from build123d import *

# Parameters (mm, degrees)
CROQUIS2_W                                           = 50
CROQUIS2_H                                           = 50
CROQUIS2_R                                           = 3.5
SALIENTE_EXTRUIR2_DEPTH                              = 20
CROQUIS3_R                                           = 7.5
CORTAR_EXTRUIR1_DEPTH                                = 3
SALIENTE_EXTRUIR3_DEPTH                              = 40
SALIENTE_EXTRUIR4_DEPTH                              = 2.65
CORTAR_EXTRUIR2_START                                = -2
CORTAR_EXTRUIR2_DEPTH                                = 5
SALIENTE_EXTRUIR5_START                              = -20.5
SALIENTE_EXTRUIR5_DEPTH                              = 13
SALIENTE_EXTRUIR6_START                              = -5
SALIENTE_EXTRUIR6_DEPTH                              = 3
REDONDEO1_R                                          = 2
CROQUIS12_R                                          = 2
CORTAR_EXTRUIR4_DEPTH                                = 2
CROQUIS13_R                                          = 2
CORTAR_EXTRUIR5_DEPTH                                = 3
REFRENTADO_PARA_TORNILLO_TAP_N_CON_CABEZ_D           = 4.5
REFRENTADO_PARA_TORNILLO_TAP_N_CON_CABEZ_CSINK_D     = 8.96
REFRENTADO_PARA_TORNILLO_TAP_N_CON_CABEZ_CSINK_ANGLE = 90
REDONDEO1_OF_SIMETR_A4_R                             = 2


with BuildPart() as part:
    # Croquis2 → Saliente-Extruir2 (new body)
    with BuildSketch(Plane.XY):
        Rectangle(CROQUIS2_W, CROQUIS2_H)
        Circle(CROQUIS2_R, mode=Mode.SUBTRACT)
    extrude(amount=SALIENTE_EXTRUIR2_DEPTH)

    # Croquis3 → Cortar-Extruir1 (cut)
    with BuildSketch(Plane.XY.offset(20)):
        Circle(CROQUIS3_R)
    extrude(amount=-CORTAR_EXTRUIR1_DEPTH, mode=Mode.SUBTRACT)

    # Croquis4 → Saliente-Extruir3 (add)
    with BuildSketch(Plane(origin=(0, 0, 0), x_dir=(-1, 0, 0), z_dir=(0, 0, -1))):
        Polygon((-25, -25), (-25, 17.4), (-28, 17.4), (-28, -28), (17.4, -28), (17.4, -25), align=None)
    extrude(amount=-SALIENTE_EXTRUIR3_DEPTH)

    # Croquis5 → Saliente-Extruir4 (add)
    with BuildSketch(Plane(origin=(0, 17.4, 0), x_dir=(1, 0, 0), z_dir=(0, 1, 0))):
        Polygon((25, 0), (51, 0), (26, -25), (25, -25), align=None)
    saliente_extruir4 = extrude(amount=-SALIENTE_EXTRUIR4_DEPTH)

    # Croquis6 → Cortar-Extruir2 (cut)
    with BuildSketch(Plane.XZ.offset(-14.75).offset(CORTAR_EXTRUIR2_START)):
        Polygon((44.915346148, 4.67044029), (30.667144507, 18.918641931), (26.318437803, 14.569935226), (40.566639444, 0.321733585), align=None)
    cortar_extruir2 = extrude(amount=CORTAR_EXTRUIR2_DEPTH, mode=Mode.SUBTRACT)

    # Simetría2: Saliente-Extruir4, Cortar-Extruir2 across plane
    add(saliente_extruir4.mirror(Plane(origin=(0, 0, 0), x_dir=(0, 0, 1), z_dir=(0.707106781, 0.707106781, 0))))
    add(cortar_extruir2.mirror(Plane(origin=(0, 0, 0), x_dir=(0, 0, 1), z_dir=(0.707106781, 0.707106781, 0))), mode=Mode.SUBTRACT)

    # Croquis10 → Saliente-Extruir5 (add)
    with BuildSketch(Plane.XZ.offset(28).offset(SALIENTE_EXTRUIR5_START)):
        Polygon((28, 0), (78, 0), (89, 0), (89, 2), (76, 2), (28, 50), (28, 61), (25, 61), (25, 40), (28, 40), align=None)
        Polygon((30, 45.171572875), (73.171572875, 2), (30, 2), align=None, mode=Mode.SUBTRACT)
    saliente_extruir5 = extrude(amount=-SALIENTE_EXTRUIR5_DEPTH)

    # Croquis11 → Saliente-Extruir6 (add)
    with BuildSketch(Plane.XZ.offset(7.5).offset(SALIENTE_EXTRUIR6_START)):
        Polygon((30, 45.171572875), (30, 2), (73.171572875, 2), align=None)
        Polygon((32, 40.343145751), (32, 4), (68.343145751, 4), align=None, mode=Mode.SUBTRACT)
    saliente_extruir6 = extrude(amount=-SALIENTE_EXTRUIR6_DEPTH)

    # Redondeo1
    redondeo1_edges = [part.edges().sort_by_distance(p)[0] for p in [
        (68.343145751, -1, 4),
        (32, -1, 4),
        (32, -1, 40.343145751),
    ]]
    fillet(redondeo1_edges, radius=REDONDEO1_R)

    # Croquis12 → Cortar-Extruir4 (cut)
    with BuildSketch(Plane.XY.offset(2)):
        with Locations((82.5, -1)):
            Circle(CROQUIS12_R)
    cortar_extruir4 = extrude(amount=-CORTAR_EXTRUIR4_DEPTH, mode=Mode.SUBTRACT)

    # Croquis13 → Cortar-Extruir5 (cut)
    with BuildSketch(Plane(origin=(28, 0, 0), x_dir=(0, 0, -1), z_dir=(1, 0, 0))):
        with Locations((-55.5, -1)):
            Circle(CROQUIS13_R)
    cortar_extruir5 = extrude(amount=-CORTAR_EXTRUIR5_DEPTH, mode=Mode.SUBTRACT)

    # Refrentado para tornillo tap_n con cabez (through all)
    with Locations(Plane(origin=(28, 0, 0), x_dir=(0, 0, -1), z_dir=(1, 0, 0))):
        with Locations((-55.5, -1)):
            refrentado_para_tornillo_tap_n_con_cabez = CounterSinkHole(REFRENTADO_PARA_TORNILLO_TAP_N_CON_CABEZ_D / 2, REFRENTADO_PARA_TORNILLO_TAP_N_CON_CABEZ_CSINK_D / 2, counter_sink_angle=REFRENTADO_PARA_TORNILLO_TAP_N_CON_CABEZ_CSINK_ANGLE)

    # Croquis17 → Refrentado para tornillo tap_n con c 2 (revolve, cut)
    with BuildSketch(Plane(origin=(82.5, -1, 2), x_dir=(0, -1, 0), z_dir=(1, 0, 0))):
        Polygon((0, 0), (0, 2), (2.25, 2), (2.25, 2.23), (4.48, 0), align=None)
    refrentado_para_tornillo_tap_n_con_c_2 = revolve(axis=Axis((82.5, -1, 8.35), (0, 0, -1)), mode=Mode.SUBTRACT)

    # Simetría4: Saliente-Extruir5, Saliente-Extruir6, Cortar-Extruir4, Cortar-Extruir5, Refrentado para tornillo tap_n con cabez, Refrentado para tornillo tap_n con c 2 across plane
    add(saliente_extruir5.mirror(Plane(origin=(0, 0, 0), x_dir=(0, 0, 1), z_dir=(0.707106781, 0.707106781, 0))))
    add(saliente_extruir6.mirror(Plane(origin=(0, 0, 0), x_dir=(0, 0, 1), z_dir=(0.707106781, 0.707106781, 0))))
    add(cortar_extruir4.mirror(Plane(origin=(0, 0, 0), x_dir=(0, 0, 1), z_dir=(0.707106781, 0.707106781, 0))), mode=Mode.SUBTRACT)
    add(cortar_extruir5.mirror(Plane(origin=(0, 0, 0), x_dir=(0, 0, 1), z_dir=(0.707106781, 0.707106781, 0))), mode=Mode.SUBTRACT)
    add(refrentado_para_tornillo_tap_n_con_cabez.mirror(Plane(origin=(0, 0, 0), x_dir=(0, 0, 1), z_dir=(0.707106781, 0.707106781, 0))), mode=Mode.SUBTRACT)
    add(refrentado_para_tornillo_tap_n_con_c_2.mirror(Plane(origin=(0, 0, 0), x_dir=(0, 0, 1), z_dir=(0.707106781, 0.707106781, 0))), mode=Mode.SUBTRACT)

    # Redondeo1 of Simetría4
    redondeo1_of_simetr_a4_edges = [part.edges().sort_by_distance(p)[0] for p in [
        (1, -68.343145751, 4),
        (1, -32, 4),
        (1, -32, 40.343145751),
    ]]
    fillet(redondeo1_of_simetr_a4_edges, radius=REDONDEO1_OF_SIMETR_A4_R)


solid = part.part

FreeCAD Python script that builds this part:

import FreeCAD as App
import Part
import Sketcher
Q = App.Units.Quantity


def edges_at(feature, points):
    """Names of the edges that pass closest to the given points."""
    edges = feature.Shape.Edges
    near = lambda p: min(range(len(edges)), key=lambda i: edges[i].distToShape(Part.Vertex(*p))[0])
    return sorted({f"Edge{near(p) + 1}" for p in points})


def add_polygon(sketch, points):
    """Adds a closed chain of lines whose ends are joined by coincident constraints."""
    first, n = sketch.GeometryCount, len(points)
    for a, b in zip(points, points[1:] + points[:1]):
        sketch.addGeometry(Part.LineSegment(App.Vector(*a, 0), App.Vector(*b, 0)), False)
    for i in range(n):
        sketch.addConstraint(Sketcher.Constraint("Coincident", first + i, 2, first + (i + 1) % n, 1))

doc = App.newDocument("Part")
body = doc.addObject("PartDesign::Body", "Body")

# Sketch on XY plane
sketch1 = doc.addObject("Sketcher::SketchObject", "Sketch")
body.addObject(sketch1)
sketch1.AttachmentSupport = (doc.XY_Plane, [""])
sketch1.MapMode = "FlatFace"
add_polygon(sketch1, [(-25, 25), (-25, -25), (25, -25), (25, 25)])  # lines 0-3
sketch1.addGeometry(Part.Circle(App.Vector(0, 0, 0), App.Vector(0, 0, 1), 3.5), False)  # 4
sketch1.addConstraint([
    Sketcher.Constraint("Vertical", 0),
    Sketcher.Constraint("Horizontal", 1),
    Sketcher.Constraint("Vertical", 2),
    Sketcher.Constraint("Horizontal", 3),
    Sketcher.Constraint("Coincident", 4, 3, -1, 1),
    Sketcher.Constraint("Symmetric", 0, 2, 2, 2, -1, 1),
    Sketcher.Constraint("Equal", 3, 0),
    Sketcher.Constraint("Diameter", 4, Q("7 mm")),
    Sketcher.Constraint("DistanceX", 1, 1, 1, 2, Q("50 mm")),
])
pad1 = doc.addObject("PartDesign::Pad", "Pad")
body.addObject(pad1)
pad1.Profile = sketch1
pad1.Length = 20

# Sketch on XY plane
sketch2 = doc.addObject("Sketcher::SketchObject", "Sketch001")
body.addObject(sketch2)
sketch2.AttachmentSupport = (doc.XY_Plane, [""])
sketch2.MapMode = "FlatFace"
sketch2.AttachmentOffset = App.Placement(App.Vector(0, 0, 20), App.Rotation())
sketch2.addGeometry(Part.Circle(App.Vector(0, 0, 0), App.Vector(0, 0, 1), 8), False)
sketch2.addConstraint([
    Sketcher.Constraint("Coincident", 0, 3, -1, 1),
    Sketcher.Constraint("Diameter", 0, Q("15 mm")),
])
pocket1 = doc.addObject("PartDesign::Pocket", "Pocket")
body.addObject(pocket1)
pocket1.Profile = sketch2
pocket1.Length = 3

# Sketch on XY plane
sketch3 = doc.addObject("Sketcher::SketchObject", "Sketch002")
body.addObject(sketch3)
sketch3.AttachmentSupport = (doc.XY_Plane, [""])
sketch3.MapMode = "FlatFace"
add_polygon(sketch3, [(25, -25), (25, 17.4), (28, 17.4), (28, -28), (-17.4, -28), (-17.4, -25)])  # lines 0-5
sketch3.addConstraint([
    Sketcher.Constraint("Vertical", 0),
    Sketcher.Constraint("Horizontal", 1),
    Sketcher.Constraint("Vertical", 2),
    Sketcher.Constraint("Horizontal", 3),
    Sketcher.Constraint("Vertical", 4),
    Sketcher.Constraint("Horizontal", 5),
    Sketcher.Constraint("Equal", 5, 0),
    Sketcher.Constraint("Equal", 3, 2),
    Sketcher.Constraint("DistanceX", 1, 1, 1, 2, Q("3 mm")),
    Sketcher.Constraint("DistanceX", 3, 2, 3, 1, Q("45.4 mm")),
    Sketcher.Constraint("DistanceX", -1, 1, 0, 2, Q("25 mm")),
    Sketcher.Constraint("DistanceY", 2, 2, -1, 1, Q("28 mm")),
])
pad2 = doc.addObject("PartDesign::Pad", "Pad001")
body.addObject(pad2)
pad2.Profile = sketch3
pad2.Length = 40

# Sketch on XZ plane
sketch4 = doc.addObject("Sketcher::SketchObject", "Sketch003")
body.addObject(sketch4)
sketch4.AttachmentSupport = (doc.XZ_Plane, [""])
sketch4.MapMode = "FlatFace"
sketch4.AttachmentOffset = App.Placement(App.Vector(0, 0, -17.4), App.Rotation())
add_polygon(sketch4, [(51, 0), (25, 0), (25, 25), (26, 25)])  # lines 0-3
sketch4.addConstraint([
    Sketcher.Constraint("Horizontal", 0),
    Sketcher.Constraint("Vertical", 1),
    Sketcher.Constraint("Horizontal", 2),
    Sketcher.Constraint("PointOnObject", 0, 2, -1),
    Sketcher.Constraint("DistanceX", 0, 2, 0, 1, Q("26 mm")),
    Sketcher.Constraint("DistanceX", 2, 1, 2, 2, Q("1 mm")),
    Sketcher.Constraint("DistanceY", 1, 1, 1, 2, Q("25 mm")),
    Sketcher.Constraint("DistanceX", -1, 1, 0, 2, Q("25 mm")),
])
pad3 = doc.addObject("PartDesign::Pad", "Pad002")
body.addObject(pad3)
pad3.Profile = sketch4
pad3.Length = 2.65

# Sketch on XZ plane
sketch5 = doc.addObject("Sketcher::SketchObject", "Sketch004")
body.addObject(sketch5)
sketch5.AttachmentSupport = (doc.XZ_Plane, [""])
sketch5.MapMode = "FlatFace"
sketch5.AttachmentOffset = App.Placement(App.Vector(0, 0, -16.75), App.Rotation())
add_polygon(sketch5, [(45, 5), (31, 19), (26, 15), (41, 0)])  # lines 0-3
sketch5.addConstraint([
    Sketcher.Constraint("Perpendicular", 0, 1),
    Sketcher.Constraint("Perpendicular", 1, 2),
    Sketcher.Constraint("Perpendicular", 2, 3),
    Sketcher.Constraint("Angle", 0, Q("135 deg")),
    Sketcher.Constraint("Distance", 0, Q("20.15 mm")),
    Sketcher.Constraint("Distance", 1, Q("6.15 mm")),
    Sketcher.Constraint("DistanceY", -1, 1, 0, 2, Q("18.918642 mm")),
    Sketcher.Constraint("DistanceX", -1, 1, 2, 2, Q("40.566639 mm")),
])
pocket2 = doc.addObject("PartDesign::Pocket", "Pocket001")
body.addObject(pocket2)
pocket2.Profile = sketch5
pocket2.Length = 5
pocket2.Reversed = True
doc.recompute()

datumplane = doc.addObject("PartDesign::Plane", "DatumPlane")
body.addObject(datumplane)
datumplane.Placement = App.Placement(App.Vector(0, 0, 0), App.Rotation(App.Vector(0.707106781, -0.707106781, 0), App.Vector(0, 0, -1), App.Vector(0.707106781, 0.707106781, 0), "ZXY"))
mirrored = doc.addObject("PartDesign::Mirrored", "Mirrored")
body.addObject(mirrored)
mirrored.Originals = [pad3, pocket2]
mirrored.MirrorPlane = (datumplane, [""])
body.Tip = mirrored

# Sketch on XZ plane
sketch6 = doc.addObject("Sketcher::SketchObject", "Sketch005")
body.addObject(sketch6)
sketch6.AttachmentSupport = (doc.XZ_Plane, [""])
sketch6.MapMode = "FlatFace"
sketch6.AttachmentOffset = App.Placement(App.Vector(0, 0, 7.5), App.Rotation())
add_polygon(sketch6, [(28, 0), (89, 0), (89, 2), (76, 2), (28, 50), (28, 61), (25, 61), (25, 40), (28, 40)])  # lines 0-8
add_polygon(sketch6, [(30, 2), (30, 45.2), (73.2, 2)])  # lines 9-11
sketch6.addConstraint([
    Sketcher.Constraint("Horizontal", 0),
    Sketcher.Constraint("Vertical", 1),
    Sketcher.Constraint("Horizontal", 2),
    Sketcher.Constraint("Vertical", 4),
    Sketcher.Constraint("Horizontal", 5),
    Sketcher.Constraint("Vertical", 6),
    Sketcher.Constraint("Horizontal", 7),
    Sketcher.Constraint("Vertical", 8),
    Sketcher.Constraint("Vertical", 9),
    Sketcher.Constraint("Horizontal", 11),
    Sketcher.Constraint("PointOnObject", 0, 2, -1),
    Sketcher.Constraint("Parallel", 3, 10),
    Sketcher.Constraint("Horizontal", 2, 2, 10, 2),
    Sketcher.Constraint("Vertical", 4, 2, 7, 2),
    Sketcher.Constraint("Equal", 11, 9),
    Sketcher.Constraint("DistanceX", 0, 1, 0, 2, Q("61 mm")),
    Sketcher.Constraint("DistanceX", 2, 2, 2, 1, Q("13 mm")),
    Sketcher.Constraint("DistanceX", 5, 2, 5, 1, Q("3 mm")),
    Sketcher.Constraint("DistanceY", 1, 1, 1, 2, Q("2 mm")),
    Sketcher.Constraint("DistanceY", 4, 1, 4, 2, Q("11 mm")),
    Sketcher.Constraint("DistanceY", 6, 2, 6, 1, Q("21 mm")),
    Sketcher.Constraint("DistanceX", -1, 1, 0, 2, Q("89 mm")),
    Sketcher.Constraint("DistanceX", -1, 1, 9, 2, Q("30 mm")),
    Sketcher.Constraint("DistanceX", 11, 2, 11, 1, Q("43.171573 mm")),
])
pad4 = doc.addObject("PartDesign::Pad", "Pad003")
body.addObject(pad4)
pad4.Profile = sketch6
pad4.Length = 13
pad4.Reversed = True

# Sketch on XZ plane
sketch7 = doc.addObject("Sketcher::SketchObject", "Sketch006")
body.addObject(sketch7)
sketch7.AttachmentSupport = (doc.XZ_Plane, [""])
sketch7.MapMode = "FlatFace"
sketch7.AttachmentOffset = App.Placement(App.Vector(0, 0, 2.5), App.Rotation())
add_polygon(sketch7, [(30, 45), (30, 2), (73, 2)])  # lines 0-2
add_polygon(sketch7, [(32, 4), (32, 40), (68, 4)])  # lines 3-5
sketch7.addConstraint([
    Sketcher.Constraint("Vertical", 0),
    Sketcher.Constraint("Horizontal", 1),
    Sketcher.Constraint("Vertical", 3),
    Sketcher.Constraint("Horizontal", 5),
    Sketcher.Constraint("Parallel", 2, 4),
    Sketcher.Constraint("Equal", 1, 0),
    Sketcher.Constraint("DistanceX", -1, 1, 0, 2, Q("30 mm")),
    Sketcher.Constraint("DistanceY", -1, 1, 0, 2, Q("2 mm")),
    Sketcher.Constraint("DistanceX", -1, 1, 3, 2, Q("32 mm")),
    Sketcher.Constraint("DistanceY", -1, 1, 4, 2, Q("4 mm")),
    Sketcher.Constraint("Distance", 4, Q("51.39697 mm")),
    Sketcher.Constraint("DistanceX", 1, 1, 1, 2, Q("43.171573 mm")),
])
pad5 = doc.addObject("PartDesign::Pad", "Pad004")
body.addObject(pad5)
pad5.Profile = sketch7
pad5.Length = 3
pad5.Reversed = True
doc.recompute()

fillet = doc.addObject("PartDesign::Fillet", "Fillet")
body.addObject(fillet)
fillet.Base = (pad5, edges_at(pad5, [(68.343, -1, 4), (32, -1, 4), (32, -1, 40.343)]))
fillet.Radius = 2

# Sketch on XY plane
sketch8 = doc.addObject("Sketcher::SketchObject", "Sketch007")
body.addObject(sketch8)
sketch8.AttachmentSupport = (doc.XY_Plane, [""])
sketch8.MapMode = "FlatFace"
sketch8.AttachmentOffset = App.Placement(App.Vector(0, 0, 2), App.Rotation())
sketch8.addGeometry(Part.Circle(App.Vector(82.5, -1, 0), App.Vector(0, 0, 1), 2), False)
sketch8.addConstraint([
    Sketcher.Constraint("Diameter", 0, Q("4 mm")),
    Sketcher.Constraint("DistanceY", 0, 3, -1, 1, Q("1 mm")),
    Sketcher.Constraint("DistanceX", -1, 1, 0, 3, Q("82.5 mm")),
])
pocket3 = doc.addObject("PartDesign::Pocket", "Pocket002")
body.addObject(pocket3)
pocket3.Profile = sketch8
pocket3.Length = 2

# Sketch on YZ plane
sketch9 = doc.addObject("Sketcher::SketchObject", "Sketch008")
body.addObject(sketch9)
sketch9.AttachmentSupport = (doc.YZ_Plane, [""])
sketch9.MapMode = "FlatFace"
sketch9.AttachmentOffset = App.Placement(App.Vector(0, 0, 28), App.Rotation())
sketch9.addGeometry(Part.Circle(App.Vector(-1, 55.5, 0), App.Vector(0, 0, 1), 2), False)
sketch9.addConstraint([
    Sketcher.Constraint("Diameter", 0, Q("4 mm")),
    Sketcher.Constraint("DistanceX", 0, 3, -1, 1, Q("1 mm")),
    Sketcher.Constraint("DistanceY", -1, 1, 0, 3, Q("55.5 mm")),
])
pocket4 = doc.addObject("PartDesign::Pocket", "Pocket003")
body.addObject(pocket4)
pocket4.Profile = sketch9
pocket4.Length = 3

# Sketch on YZ plane
sketch10 = doc.addObject("Sketcher::SketchObject", "Sketch009")
body.addObject(sketch10)
sketch10.AttachmentSupport = (doc.YZ_Plane, [""])
sketch10.MapMode = "FlatFace"
sketch10.AttachmentOffset = App.Placement(App.Vector(0, 0, 28), App.Rotation())
sketch10.addGeometry(Part.Circle(App.Vector(-1, 55.5, 0), App.Vector(0, 0, 1), 2.2), False)
sketch10.addConstraint([
    Sketcher.Constraint("Diameter", 0, Q("4.5 mm")),
    Sketcher.Constraint("DistanceX", 0, 3, -1, 1, Q("1 mm")),
    Sketcher.Constraint("DistanceY", -1, 1, 0, 3, Q("55.5 mm")),
])
doc.recompute()
hole = doc.addObject("PartDesign::Hole", "Hole")
body.addObject(hole)
hole.Profile = sketch10
hole.ThreadType = "None"
hole.Diameter = 4.5
hole.DepthType = "ThroughAll"
hole.HoleCutType = "Countersink"
hole.HoleCutDiameter = 8.96
hole.HoleCutCountersinkAngle = 90

# Sketch on YZ plane
sketch11 = doc.addObject("Sketcher::SketchObject", "Sketch010")
body.addObject(sketch11)
sketch11.AttachmentSupport = (doc.YZ_Plane, [""])
sketch11.MapMode = "FlatFace"
sketch11.AttachmentOffset = App.Placement(App.Vector(0, 0, 82.5), App.Rotation())
add_polygon(sketch11, [(-1, 0), (-1, 2), (-5.48, 2), (-3.25, -0.23), (-3.25, 0)])  # lines 0-4
sketch11.addGeometry(Part.LineSegment(App.Vector(-1, 2, 0), App.Vector(-1, -0.23, 0)), True)  # axis
sketch11.addConstraint([
    Sketcher.Constraint("Vertical", 0),
    Sketcher.Constraint("Horizontal", 1),
    Sketcher.Constraint("Vertical", 3),
    Sketcher.Constraint("Horizontal", 4),
    Sketcher.Constraint("Vertical", 5),
    Sketcher.Constraint("Coincident", 5, 1, 0, 2),
    Sketcher.Constraint("PointOnObject", 3, 2, -1),
    Sketcher.Constraint("Horizontal", 2, 2, 5, 2),
    Sketcher.Constraint("DistanceY", 0, 1, 0, 2, Q("2 mm")),
    Sketcher.Constraint("Angle", 2, Q("-45 deg")),
    Sketcher.Constraint("DistanceX", 0, 2, -1, 1, Q("1 mm")),
    Sketcher.Constraint("DistanceX", 1, 2, 1, 1, Q("4.48 mm")),
    Sketcher.Constraint("DistanceX", 4, 1, 4, 2, Q("2.25 mm")),
])
groove = doc.addObject("PartDesign::Groove", "Groove")
body.addObject(groove)
groove.Profile = sketch11
groove.ReferenceAxis = (sketch11, ["Axis0"])
groove.Angle = 360
doc.recompute()

datumplane2 = doc.addObject("PartDesign::Plane", "DatumPlane001")
body.addObject(datumplane2)
datumplane2.Placement = App.Placement(App.Vector(0, 0, 0), App.Rotation(App.Vector(0.707106781, -0.707106781, 0), App.Vector(0, 0, -1), App.Vector(0.707106781, 0.707106781, 0), "ZXY"))
mirrored2 = doc.addObject("PartDesign::Mirrored", "Mirrored001")
body.addObject(mirrored2)
mirrored2.Originals = [pad4, pad5, pocket3, pocket4, hole, groove]
mirrored2.MirrorPlane = (datumplane2, [""])
body.Tip = mirrored2
doc.recompute()

fillet2 = doc.addObject("PartDesign::Fillet", "Fillet001")
body.addObject(fillet2)
fillet2.Base = (mirrored2, edges_at(mirrored2, [(1, -68.343, 4), (1, -32, 4), (1, -32, 40.343)]))
fillet2.Radius = 2

doc.recompute()
